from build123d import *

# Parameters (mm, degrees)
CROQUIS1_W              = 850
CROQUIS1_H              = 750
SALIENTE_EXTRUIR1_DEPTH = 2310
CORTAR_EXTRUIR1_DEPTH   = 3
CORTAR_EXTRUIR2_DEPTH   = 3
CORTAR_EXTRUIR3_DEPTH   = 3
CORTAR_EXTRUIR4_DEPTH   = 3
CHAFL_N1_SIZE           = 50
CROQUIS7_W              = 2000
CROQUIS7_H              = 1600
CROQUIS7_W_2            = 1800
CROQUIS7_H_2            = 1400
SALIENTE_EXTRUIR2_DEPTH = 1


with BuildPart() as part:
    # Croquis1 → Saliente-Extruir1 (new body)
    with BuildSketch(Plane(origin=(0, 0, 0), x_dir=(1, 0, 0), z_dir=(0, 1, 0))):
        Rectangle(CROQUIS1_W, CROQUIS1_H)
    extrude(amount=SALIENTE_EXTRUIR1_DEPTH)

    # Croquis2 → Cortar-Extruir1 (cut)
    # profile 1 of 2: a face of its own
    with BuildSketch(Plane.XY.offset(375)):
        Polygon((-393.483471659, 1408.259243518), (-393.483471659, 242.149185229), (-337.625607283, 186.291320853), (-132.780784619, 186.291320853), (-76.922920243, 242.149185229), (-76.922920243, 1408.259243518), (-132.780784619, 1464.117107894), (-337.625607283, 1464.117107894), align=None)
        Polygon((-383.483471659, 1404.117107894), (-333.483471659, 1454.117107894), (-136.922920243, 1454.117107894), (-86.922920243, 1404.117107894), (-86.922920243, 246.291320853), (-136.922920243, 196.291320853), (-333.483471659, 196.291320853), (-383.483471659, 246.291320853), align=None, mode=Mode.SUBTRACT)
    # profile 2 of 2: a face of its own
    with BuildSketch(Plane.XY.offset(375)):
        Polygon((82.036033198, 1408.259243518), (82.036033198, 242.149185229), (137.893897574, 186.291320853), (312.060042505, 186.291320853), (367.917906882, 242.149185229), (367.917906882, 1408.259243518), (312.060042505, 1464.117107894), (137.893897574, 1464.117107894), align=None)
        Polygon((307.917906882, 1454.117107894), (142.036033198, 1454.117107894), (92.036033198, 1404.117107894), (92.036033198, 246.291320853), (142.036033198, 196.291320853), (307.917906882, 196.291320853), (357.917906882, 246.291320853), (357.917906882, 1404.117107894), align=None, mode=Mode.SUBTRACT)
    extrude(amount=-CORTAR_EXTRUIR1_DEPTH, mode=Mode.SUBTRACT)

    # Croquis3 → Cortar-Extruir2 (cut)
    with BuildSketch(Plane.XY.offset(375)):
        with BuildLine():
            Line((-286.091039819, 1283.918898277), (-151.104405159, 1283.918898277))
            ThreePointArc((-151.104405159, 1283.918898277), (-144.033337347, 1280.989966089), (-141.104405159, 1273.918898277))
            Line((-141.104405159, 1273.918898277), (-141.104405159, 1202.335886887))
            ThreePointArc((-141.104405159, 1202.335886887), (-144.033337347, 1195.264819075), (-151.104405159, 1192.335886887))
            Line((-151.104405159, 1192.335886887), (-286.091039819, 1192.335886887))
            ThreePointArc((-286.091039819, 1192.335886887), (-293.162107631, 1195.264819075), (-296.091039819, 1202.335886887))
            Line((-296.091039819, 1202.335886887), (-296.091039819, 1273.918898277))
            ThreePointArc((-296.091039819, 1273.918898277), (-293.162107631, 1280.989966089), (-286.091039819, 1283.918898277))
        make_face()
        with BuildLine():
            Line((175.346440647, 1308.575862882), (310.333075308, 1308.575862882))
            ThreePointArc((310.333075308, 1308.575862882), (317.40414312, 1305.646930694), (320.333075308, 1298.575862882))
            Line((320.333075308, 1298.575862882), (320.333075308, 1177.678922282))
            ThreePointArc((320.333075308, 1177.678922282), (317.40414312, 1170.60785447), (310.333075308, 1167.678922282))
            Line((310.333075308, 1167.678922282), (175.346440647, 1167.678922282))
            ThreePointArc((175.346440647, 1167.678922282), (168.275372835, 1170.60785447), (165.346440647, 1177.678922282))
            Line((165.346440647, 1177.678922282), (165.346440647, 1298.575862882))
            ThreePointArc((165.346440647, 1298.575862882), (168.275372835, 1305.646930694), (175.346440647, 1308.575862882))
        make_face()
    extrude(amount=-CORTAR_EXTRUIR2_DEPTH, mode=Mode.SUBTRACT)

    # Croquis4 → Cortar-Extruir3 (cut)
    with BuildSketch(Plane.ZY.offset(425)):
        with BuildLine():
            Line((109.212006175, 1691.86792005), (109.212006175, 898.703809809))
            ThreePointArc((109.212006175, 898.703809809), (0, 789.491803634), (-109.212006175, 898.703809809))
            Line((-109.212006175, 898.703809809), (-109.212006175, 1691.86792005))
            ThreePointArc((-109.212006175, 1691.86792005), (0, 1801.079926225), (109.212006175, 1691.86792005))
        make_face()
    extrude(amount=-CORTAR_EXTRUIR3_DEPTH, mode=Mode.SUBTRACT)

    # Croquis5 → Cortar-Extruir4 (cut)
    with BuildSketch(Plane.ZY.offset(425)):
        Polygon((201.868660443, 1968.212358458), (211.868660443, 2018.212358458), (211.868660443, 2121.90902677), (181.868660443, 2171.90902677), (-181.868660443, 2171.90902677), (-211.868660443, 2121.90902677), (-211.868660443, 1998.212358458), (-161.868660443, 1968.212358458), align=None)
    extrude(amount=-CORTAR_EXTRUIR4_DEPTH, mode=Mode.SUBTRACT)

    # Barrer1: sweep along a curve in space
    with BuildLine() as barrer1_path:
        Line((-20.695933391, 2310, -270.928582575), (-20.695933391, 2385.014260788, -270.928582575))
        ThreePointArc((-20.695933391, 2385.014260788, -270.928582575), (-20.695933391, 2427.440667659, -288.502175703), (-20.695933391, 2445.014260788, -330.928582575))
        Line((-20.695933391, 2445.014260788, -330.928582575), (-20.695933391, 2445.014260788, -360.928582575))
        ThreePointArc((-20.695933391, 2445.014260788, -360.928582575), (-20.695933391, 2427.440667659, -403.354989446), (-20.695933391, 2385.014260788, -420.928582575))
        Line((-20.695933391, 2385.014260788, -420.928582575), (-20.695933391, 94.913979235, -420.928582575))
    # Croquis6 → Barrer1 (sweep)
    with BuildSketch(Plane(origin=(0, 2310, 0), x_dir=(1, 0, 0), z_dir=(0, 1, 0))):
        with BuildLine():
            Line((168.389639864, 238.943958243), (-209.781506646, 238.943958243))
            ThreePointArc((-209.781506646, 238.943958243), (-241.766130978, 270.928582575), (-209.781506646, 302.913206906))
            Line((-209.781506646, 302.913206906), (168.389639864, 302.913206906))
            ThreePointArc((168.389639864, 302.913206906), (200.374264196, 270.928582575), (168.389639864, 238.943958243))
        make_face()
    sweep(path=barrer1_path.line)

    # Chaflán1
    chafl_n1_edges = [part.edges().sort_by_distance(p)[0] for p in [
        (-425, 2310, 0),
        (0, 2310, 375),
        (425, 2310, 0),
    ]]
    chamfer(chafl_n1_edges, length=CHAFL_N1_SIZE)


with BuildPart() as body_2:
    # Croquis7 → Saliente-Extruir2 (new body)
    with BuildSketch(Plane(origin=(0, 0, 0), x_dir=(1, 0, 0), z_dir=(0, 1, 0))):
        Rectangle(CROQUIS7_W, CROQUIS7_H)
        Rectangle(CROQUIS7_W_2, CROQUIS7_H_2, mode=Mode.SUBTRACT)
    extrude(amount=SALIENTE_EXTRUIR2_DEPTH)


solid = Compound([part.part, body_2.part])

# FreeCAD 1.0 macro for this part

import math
import FreeCAD as App
import Part
import Sketcher


def edges_at(feature, points):
    """Names of the edges that pass closest to the given points."""
    edges = feature.Shape.Edges
    near = lambda p: min(range(len(edges)), key=lambda i: edges[i].distToShape(Part.Vertex(*p))[0])
    return sorted({f"Edge{near(p) + 1}" for p in points})


def add_polygon(sketch, points):
    """Adds a closed chain of lines whose ends are joined by coincident constraints."""
    first, n = sketch.GeometryCount, len(points)
    for a, b in zip(points, points[1:] + points[:1]):
        sketch.addGeometry(Part.LineSegment(App.Vector(*a, 0), App.Vector(*b, 0)), False)
    for i in range(n):
        sketch.addConstraint(Sketcher.Constraint("Coincident", first + i, 2, first + (i + 1) % n, 1))

doc = App.newDocument("Part")
params = doc.addObject("Spreadsheet::Sheet", "Params")
for row, (alias, value) in enumerate([
    ("sketch1_width", "850 mm"),
    ("sketch1_height", "750 mm"),
    ("pad1_length", "2310 mm"),
    ("pocket1_length", "3 mm"),
    ("sketch3_radius", "10 mm"),
    ("pocket2_length", "3 mm"),
    ("pocket3_length", "3 mm"),
    ("pocket4_length", "3 mm"),
    ("sketch7_radius", "60 mm"),
    ("sketch7_height", "30 mm"),
    ("chamfer_size", "50 mm"),
    ("sketch8_width", "2000 mm"),
    ("sketch8_width2", "1800 mm"),
    ("sketch8_height", "1600 mm"),
    ("sketch8_height2", "1400 mm"),
    ("pad2_length", "1 mm"),
], start=1):
    params.set(f"A{row}", alias)
    params.set(f"B{row}", "=" + value)
    params.setAlias(f"B{row}", alias)

body = doc.addObject("PartDesign::Body", "Body")

# Sketch on XZ plane
sketch1 = body.newObject("Sketcher::SketchObject", "Sketch")
sketch1.AttachmentSupport = (doc.getObject("XZ_Plane"), [""])
sketch1.MapMode = "FlatFace"
add_polygon(sketch1, [(-425, -375), (-425, 375), (425, 375), (425, -375)])  # lines 0-3
sketch1.addConstraint([
    Sketcher.Constraint("Vertical", 0),
    Sketcher.Constraint("Horizontal", 1),
    Sketcher.Constraint("Vertical", 2),
    Sketcher.Constraint("Horizontal", 3),
    Sketcher.Constraint("Symmetric", 0, 2, 2, 2, -1, 1),
    Sketcher.Constraint("DistanceX", 1, 1, 1, 2, 850.0),
    Sketcher.Constraint("DistanceY", 0, 1, 0, 2, 750.0),
])
sketch1.setExpression("Constraints[9]", "Params.sketch1_width")
sketch1.setExpression("Constraints[10]", "Params.sketch1_height")
pad1 = body.newObject("PartDesign::Pad", "Pad")
pad1.Profile = sketch1
pad1.setExpression("Length", "Params.pad1_length")
pad1.Reversed = True

# Sketch on XY plane
sketch2 = body.newObject("Sketcher::SketchObject", "Sketch001")
sketch2.AttachmentSupport = (doc.getObject("XY_Plane"), [""])
sketch2.MapMode = "FlatFace"
sketch2.AttachmentOffset = App.Placement(App.Vector(0, 0, 375), App.Rotation())
add_polygon(sketch2, [(-393, 1408), (-393, 242), (-338, 186), (-133, 186), (-77, 242), (-77, 1408), (-133, 1464), (-338, 1464)])  # lines 0-7
add_polygon(sketch2, [(-383, 246), (-383, 1404), (-333, 1454), (-137, 1454), (-87, 1404), (-87, 246), (-137, 196), (-333, 196)])  # lines 8-15
add_polygon(sketch2, [(82, 1408), (82, 242), (138, 186), (312, 186), (368, 242), (368, 1408), (312, 1464), (138, 1464)])  # lines 16-23
add_polygon(sketch2, [(142, 1454), (308, 1454), (358, 1404), (358, 246), (308, 196), (142, 196), (92, 246), (92, 1404)])  # lines 24-31
sketch2.addConstraint([
    Sketcher.Constraint("Vertical", 0),
    Sketcher.Constraint("Horizontal", 2),
    Sketcher.Constraint("Vertical", 4),
    Sketcher.Constraint("Horizontal", 6),
    Sketcher.Constraint("Vertical", 8),
    Sketcher.Constraint("Horizontal", 10),
    Sketcher.Constraint("Vertical", 12),
    Sketcher.Constraint("Horizontal", 14),
    Sketcher.Constraint("Vertical", 16),
    Sketcher.Constraint("Horizontal", 18),
    Sketcher.Constraint("Vertical", 20),
    Sketcher.Constraint("Horizontal", 22),
    Sketcher.Constraint("Horizontal", 24),
    Sketcher.Constraint("Vertical", 26),
    Sketcher.Constraint("Horizontal", 28),
    Sketcher.Constraint("Vertical", 30),
    Sketcher.Constraint("Perpendicular", 1, 3),
    Sketcher.Constraint("Perpendicular", 3, 5),
    Sketcher.Constraint("Perpendicular", 5, 7),
    Sketcher.Constraint("Parallel", 7, 9),
    Sketcher.Constraint("Perpendicular", 9, 11),
    Sketcher.Constraint("Perpendicular", 11, 13),
    Sketcher.Constraint("Perpendicular", 13, 15),
    Sketcher.Constraint("Parallel", 15, 17),
    Sketcher.Constraint("Perpendicular", 17, 19),
    Sketcher.Constraint("Perpendicular", 19, 21),
    Sketcher.Constraint("Perpendicular", 21, 23),
    Sketcher.Constraint("Perpendicular", 23, 25),
    Sketcher.Constraint("Perpendicular", 25, 27),
    Sketcher.Constraint("Perpendicular", 27, 29),
    Sketcher.Constraint("Perpendicular", 29, 31),
    Sketcher.Constraint("Horizontal", 0, 2, 3, 2),
    Sketcher.Constraint("Horizontal", 4, 2, 7, 2),
    Sketcher.Constraint("Horizontal", 8, 2, 11, 2),
    Sketcher.Constraint("Horizontal", 12, 2, 15, 2),
    Sketcher.Constraint("Horizontal", 3, 2, 16, 2),
    Sketcher.Constraint("Horizontal", 2, 2, 17, 2),
    Sketcher.Constraint("Horizontal", 16, 2, 19, 2),
    Sketcher.Constraint("Horizontal", 7, 2, 20, 2),
    Sketcher.Constraint("Horizontal", 6, 2, 21, 2),
    Sketcher.Constraint("Horizontal", 20, 2, 23, 2),
    Sketcher.Constraint("Horizontal", 10, 2, 24, 2),
    Sketcher.Constraint("Horizontal", 11, 2, 25, 2),
    Sketcher.Constraint("Horizontal", 15, 2, 26, 2),
    Sketcher.Constraint("Horizontal", 14, 2, 27, 2),
    Sketcher.Constraint("Horizontal", 26, 2, 29, 2),
    Sketcher.Constraint("Horizontal", 25, 2, 30, 2),
    Sketcher.Constraint("Vertical", 2, 2, 5, 2),
    Sketcher.Constraint("Vertical", 1, 2, 6, 2),
    Sketcher.Constraint("Vertical", 10, 2, 13, 2),
    Sketcher.Constraint("DistanceX", 7, 2, 8, 2, 10.0),
    Sketcher.Constraint("DistanceY", 8, 2, 6, 2, 60.0),
    Sketcher.Constraint("DistanceY", 9, 2, 6, 2, 10.0),
    Sketcher.Constraint("DistanceX", 10, 2, 4, 2, 60.0),
    Sketcher.Constraint("DistanceY", 2, 2, 12, 2, 60.0),
    Sketcher.Constraint("DistanceX", 24, 2, 20, 2, 60.0),
    Sketcher.Constraint("DistanceX", 16, 2, 28, 2, 60.0),
    Sketcher.Constraint("DistanceX", 10, 1, 10, 2, 196.560551),
    Sketcher.Constraint("DistanceY", 0, 2, 0, 1, 1166.110058),
    Sketcher.Constraint("Distance", 1, 78.994949),
    Sketcher.Constraint("DistanceX", 18, 1, 18, 2, 174.166145),
    Sketcher.Constraint("DistanceX", 0, 2, -1, 1, 393.483472),
    Sketcher.Constraint("DistanceY", -1, 1, 1, 2, 186.291321),
    Sketcher.Constraint("DistanceX", 5, 2, 20, 2, 500.698692),
])
pocket1 = body.newObject("PartDesign::Pocket", "Pocket")
pocket1.Profile = sketch2
pocket1.setExpression("Length", "Params.pocket1_length")

# Sketch on XY plane
sketch3 = body.newObject("Sketcher::SketchObject", "Sketch002")
sketch3.AttachmentSupport = (doc.getObject("XY_Plane"), [""])
sketch3.MapMode = "FlatFace"
sketch3.AttachmentOffset = App.Placement(App.Vector(0, 0, 375), App.Rotation())
sketch3.addGeometry([
    Part.LineSegment(App.Vector(-151, 1284, 0), App.Vector(-286, 1284, 0)),  # 0
    Part.ArcOfCircle(Part.Circle(App.Vector(-286, 1274, 0), App.Vector(0, 0, 1), 10), math.radians(90), math.radians(180)),  # 1
    Part.LineSegment(App.Vector(-296, 1274, 0), App.Vector(-296, 1202, 0)),  # 2
    Part.ArcOfCircle(Part.Circle(App.Vector(-286, 1202, 0), App.Vector(0, 0, 1), 10), math.radians(180), math.radians(270)),  # 3
    Part.LineSegment(App.Vector(-286, 1192, 0), App.Vector(-151, 1192, 0)),  # 4
    Part.ArcOfCircle(Part.Circle(App.Vector(-151, 1202, 0), App.Vector(0, 0, 1), 10), math.radians(-90), math.radians(0)),  # 5
    Part.LineSegment(App.Vector(-141, 1202, 0), App.Vector(-141, 1274, 0)),  # 6
    Part.ArcOfCircle(Part.Circle(App.Vector(-151, 1274, 0), App.Vector(0, 0, 1), 10), math.radians(0), math.radians(90)),  # 7
    Part.LineSegment(App.Vector(310, 1309, 0), App.Vector(175, 1309, 0)),  # 8
    Part.ArcOfCircle(Part.Circle(App.Vector(175, 1299, 0), App.Vector(0, 0, 1), 10), math.radians(90), math.radians(180)),  # 9
    Part.LineSegment(App.Vector(165, 1299, 0), App.Vector(165, 1178, 0)),  # 10
    Part.ArcOfCircle(Part.Circle(App.Vector(175, 1178, 0), App.Vector(0, 0, 1), 10), math.radians(180), math.radians(270)),  # 11
    Part.LineSegment(App.Vector(175, 1168, 0), App.Vector(310, 1168, 0)),  # 12
    Part.ArcOfCircle(Part.Circle(App.Vector(310, 1178, 0), App.Vector(0, 0, 1), 10), math.radians(-90), math.radians(0)),  # 13
    Part.LineSegment(App.Vector(320, 1178, 0), App.Vector(320, 1299, 0)),  # 14
    Part.ArcOfCircle(Part.Circle(App.Vector(310, 1299, 0), App.Vector(0, 0, 1), 10), math.radians(0), math.radians(90)),  # 15
], False)
sketch3.addConstraint([
    Sketcher.Constraint("Tangent", 0, 2, 1, 1),
    Sketcher.Constraint("Tangent", 1, 2, 2, 1),
    Sketcher.Constraint("Tangent", 2, 2, 3, 1),
    Sketcher.Constraint("Tangent", 3, 2, 4, 1),
    Sketcher.Constraint("Tangent", 4, 2, 5, 1),
    Sketcher.Constraint("Tangent", 5, 2, 6, 1),
    Sketcher.Constraint("Tangent", 6, 2, 7, 1),
    Sketcher.Constraint("Tangent", 7, 2, 0, 1),
    Sketcher.Constraint("Tangent", 8, 2, 9, 1),
    Sketcher.Constraint("Tangent", 9, 2, 10, 1),
    Sketcher.Constraint("Tangent", 10, 2, 11, 1),
    Sketcher.Constraint("Tangent", 11, 2, 12, 1),
    Sketcher.Constraint("Tangent", 12, 2, 13, 1),
    Sketcher.Constraint("Tangent", 13, 2, 14, 1),
    Sketcher.Constraint("Tangent", 14, 2, 15, 1),
    Sketcher.Constraint("Tangent", 15, 2, 8, 1),
    Sketcher.Constraint("Horizontal", 0),
    Sketcher.Constraint("Vertical", 2),
    Sketcher.Constraint("Horizontal", 4),
    Sketcher.Constraint("Vertical", 6),
    Sketcher.Constraint("Horizontal", 8),
    Sketcher.Constraint("Vertical", 10),
    Sketcher.Constraint("Horizontal", 12),
    Sketcher.Constraint("Vertical", 14),
    Sketcher.Constraint("Equal", 1, 3),
    Sketcher.Constraint("Equal", 3, 5),
    Sketcher.Constraint("Equal", 5, 7),
    Sketcher.Constraint("Equal", 7, 9),
    Sketcher.Constraint("Equal", 9, 11),
    Sketcher.Constraint("Equal", 11, 13),
    Sketcher.Constraint("Equal", 13, 15),
    Sketcher.Constraint("Equal", 4, 8),
    Sketcher.Constraint("Radius", 1, 10.0),
    Sketcher.Constraint("DistanceY", 2, 2, 2, 1, 71.583011),
    Sketcher.Constraint("DistanceY", 10, 2, 10, 1, 120.896941),
    Sketcher.Constraint("DistanceY", -1, 1, 1, 3, 1273.918898),
    Sketcher.Constraint("DistanceX", 0, 2, 0, 1, 134.986635),
    Sketcher.Constraint("DistanceX", 1, 3, -1, 1, 286.09104),
    Sketcher.Constraint("DistanceX", -1, 1, 9, 3, 175.346441),
    Sketcher.Constraint("DistanceY", -1, 1, 9, 3, 1298.575863),
])
sketch3.setExpression("Constraints[32]", "Params.sketch3_radius")
pocket2 = body.newObject("PartDesign::Pocket", "Pocket001")
pocket2.Profile = sketch3
pocket2.setExpression("Length", "Params.pocket2_length")

# Sketch on YZ plane
sketch4 = body.newObject("Sketcher::SketchObject", "Sketch003")
sketch4.AttachmentSupport = (doc.getObject("YZ_Plane"), [""])
sketch4.MapMode = "FlatFace"
sketch4.AttachmentOffset = App.Placement(App.Vector(0, 0, -425), App.Rotation())
sketch4.addGeometry([
    Part.LineSegment(App.Vector(899, 109, 0), App.Vector(1692, 109, 0)),
    Part.ArcOfCircle(Part.Circle(App.Vector(1692, 0, 0), App.Vector(0, 0, 1), 109), math.radians(-90), math.radians(90)),
    Part.LineSegment(App.Vector(1692, -109, 0), App.Vector(899, -109, 0)),
    Part.ArcOfCircle(Part.Circle(App.Vector(899, 0, 0), App.Vector(0, 0, 1), 109), math.radians(90), math.radians(270)),
], False)
sketch4.addConstraint([
    Sketcher.Constraint("Tangent", 0, 2, 1, 2),
    Sketcher.Constraint("Tangent", 1, 1, 2, 1),
    Sketcher.Constraint("Tangent", 2, 2, 3, 2),
    Sketcher.Constraint("Tangent", 3, 1, 0, 1),
    Sketcher.Constraint("Horizontal", 0),
    Sketcher.Constraint("Horizontal", 2),
    Sketcher.Constraint("PointOnObject", 1, 3, -1),
    Sketcher.Constraint("Radius", 1, 109.212006),
    Sketcher.Constraint("DistanceX", 0, 1, 0, 2, 793.16411),
    Sketcher.Constraint("DistanceX", -1, 1, 1, 3, 1691.86792),
])
pocket3 = body.newObject("PartDesign::Pocket", "Pocket002")
pocket3.Profile = sketch4
pocket3.setExpression("Length", "Params.pocket3_length")
pocket3.Reversed = True

# Sketch on YZ plane
sketch5 = body.newObject("Sketcher::SketchObject", "Sketch004")
sketch5.AttachmentSupport = (doc.getObject("YZ_Plane"), [""])
sketch5.MapMode = "FlatFace"
sketch5.AttachmentOffset = App.Placement(App.Vector(0, 0, -425), App.Rotation())
add_polygon(sketch5, [(1968, 202), (2018, 212), (2122, 212), (2172, 182), (2172, -182), (2122, -212), (1998, -212), (1968, -162)])  # lines 0-7
sketch5.addConstraint([
    Sketcher.Constraint("Horizontal", 1),
    Sketcher.Constraint("Vertical", 3),
    Sketcher.Constraint("Horizontal", 5),
    Sketcher.Constraint("Vertical", 7),
    Sketcher.Constraint("Symmetric", 1, 2, 4, 2, -1),
    Sketcher.Constraint("Perpendicular", 4, 6),
    Sketcher.Constraint("Equal", 3, 7),
    Sketcher.Constraint("Equal", 2, 4),
    Sketcher.Constraint("Equal", 4, 6),
    Sketcher.Constraint("DistanceX", 1, 2, 2, 2, 50.0),
    Sketcher.Constraint("DistanceY", 2, 2, 1, 2, 30.0),
    Sketcher.Constraint("DistanceX", 5, 2, 0, 2, 20.0),
    Sketcher.Constraint("DistanceX", 1, 1, 1, 2, 103.696668),
    Sketcher.Constraint("DistanceY", 3, 2, 3, 1, 363.737321),
    Sketcher.Constraint("DistanceX", -1, 1, 0, 2, 2018.212358),
])
pocket4 = body.newObject("PartDesign::Pocket", "Pocket003")
pocket4.Profile = sketch5
pocket4.setExpression("Length", "Params.pocket4_length")
pocket4.Reversed = True

# Sketch on XZ plane
sketch6 = body.newObject("Sketcher::SketchObject", "Sketch005")
sketch6.AttachmentSupport = (doc.getObject("XZ_Plane"), [""])
sketch6.MapMode = "FlatFace"
sketch6.AttachmentOffset = App.Placement(App.Vector(0, 0, -2310), App.Rotation())
sketch6.addGeometry([
    Part.LineSegment(App.Vector(-210, -239, 0), App.Vector(168, -239, 0)),
    Part.ArcOfCircle(Part.Circle(App.Vector(168, -271, 0), App.Vector(0, 0, 1), 32), math.radians(-90), math.radians(90)),
    Part.LineSegment(App.Vector(168, -303, 0), App.Vector(-210, -303, 0)),
    Part.ArcOfCircle(Part.Circle(App.Vector(-210, -271, 0), App.Vector(0, 0, 1), 32), math.radians(90), math.radians(270)),
], False)
sketch6.addConstraint([
    Sketcher.Constraint("Tangent", 0, 2, 1, 2),
    Sketcher.Constraint("Tangent", 1, 1, 2, 1),
    Sketcher.Constraint("Tangent", 2, 2, 3, 2),
    Sketcher.Constraint("Tangent", 3, 1, 0, 1),
    Sketcher.Constraint("Horizontal", 0),
    Sketcher.Constraint("Horizontal", 2),
    Sketcher.Constraint("Radius", 1, 31.984624),
    Sketcher.Constraint("DistanceX", 0, 1, 0, 2, 378.171147),
    Sketcher.Constraint("DistanceX", -1, 1, 1, 3, 168.38964),
    Sketcher.Constraint("DistanceY", 0, 2, -1, 1, 238.943958),
])

# Sketch on YZ plane
sketch7 = body.newObject("Sketcher::SketchObject", "Sketch006")
sketch7.AttachmentSupport = (doc.getObject("YZ_Plane"), [""])
sketch7.MapMode = "FlatFace"
sketch7.AttachmentOffset = App.Placement(App.Vector(0, 0, -20.695933), App.Rotation())
sketch7.addGeometry([
    Part.LineSegment(App.Vector(2310, -271, 0), App.Vector(2385, -271, 0)),  # 0
    Part.ArcOfCircle(Part.Circle(App.Vector(2385, -331, 0), App.Vector(0, 0, 1), 60), math.radians(0), math.radians(90)),  # 1
    Part.LineSegment(App.Vector(2445, -331, 0), App.Vector(2445, -361, 0)),  # 2
    Part.ArcOfCircle(Part.Circle(App.Vector(2385, -361, 0), App.Vector(0, 0, 1), 60), math.radians(-90), math.radians(0)),  # 3
    Part.LineSegment(App.Vector(2385, -421, 0), App.Vector(95, -421, 0)),  # 4
], False)
sketch7.addConstraint([
    Sketcher.Constraint("Tangent", 0, 2, 1, 2),
    Sketcher.Constraint("Tangent", 1, 1, 2, 1),
    Sketcher.Constraint("Tangent", 2, 2, 3, 2),
    Sketcher.Constraint("Tangent", 3, 1, 4, 1),
    Sketcher.Constraint("Horizontal", 0),
    Sketcher.Constraint("Vertical", 2),
    Sketcher.Constraint("Horizontal", 4),
    Sketcher.Constraint("Equal", 1, 3),
    Sketcher.Constraint("Radius", 1, 60.0),
    Sketcher.Constraint("DistanceY", 2, 2, 2, 1, 30.0),
    Sketcher.Constraint("DistanceX", -1, 1, 0, 1, 2310.0),
    Sketcher.Constraint("DistanceX", 0, 1, 0, 2, 75.014261),
    Sketcher.Constraint("DistanceX", 4, 2, 4, 1, 2290.100282),
    Sketcher.Constraint("DistanceY", 1, 3, -1, 1, 330.928583),
])
sketch7.setExpression("Constraints[8]", "Params.sketch7_radius")
sketch7.setExpression("Constraints[9]", "Params.sketch7_height")
doc.recompute()

additivepipe = body.newObject("PartDesign::AdditivePipe", "AdditivePipe")
additivepipe.Profile = sketch6
additivepipe.Spine = (sketch7, ["Edge1", "Edge2", "Edge3", "Edge4", "Edge5"])
doc.recompute()

chamfer = body.newObject("PartDesign::Chamfer", "Chamfer")
chamfer.Base = (additivepipe, edges_at(additivepipe, [(-425, 2310, 0), (0, 2310, 375), (425, 2310, 0)]))
chamfer.setExpression("Size", "Params.chamfer_size")
body2 = doc.addObject("PartDesign::Body", "Body001")

# Sketch on XZ plane
sketch8 = body2.newObject("Sketcher::SketchObject", "Sketch007")
sketch8.AttachmentSupport = (doc.getObject("XZ_Plane001"), [""])
sketch8.MapMode = "FlatFace"
add_polygon(sketch8, [(-1000, -800), (-1000, 800), (1000, 800), (1000, -800)])  # lines 0-3
add_polygon(sketch8, [(900, 700), (-900, 700), (-900, -700), (900, -700)])  # lines 4-7
sketch8.addConstraint([
    Sketcher.Constraint("Vertical", 0),
    Sketcher.Constraint("Horizontal", 1),
    Sketcher.Constraint("Vertical", 2),
    Sketcher.Constraint("Horizontal", 3),
    Sketcher.Constraint("Horizontal", 4),
    Sketcher.Constraint("Vertical", 5),
    Sketcher.Constraint("Horizontal", 6),
    Sketcher.Constraint("Vertical", 7),
    Sketcher.Constraint("Symmetric", 0, 2, 2, 2, -1, 1),
    Sketcher.Constraint("Symmetric", 4, 2, 6, 2, -1, 1),
    Sketcher.Constraint("DistanceX", 1, 1, 1, 2, 2000.0),
    Sketcher.Constraint("DistanceX", 4, 2, 4, 1, 1800.0),
    Sketcher.Constraint("DistanceY", 0, 1, 0, 2, 1600.0),
    Sketcher.Constraint("DistanceY", 5, 2, 5, 1, 1400.0),
])
sketch8.setExpression("Constraints[18]", "Params.sketch8_width")
sketch8.setExpression("Constraints[19]", "Params.sketch8_width2")
sketch8.setExpression("Constraints[20]", "Params.sketch8_height")
sketch8.setExpression("Constraints[21]", "Params.sketch8_height2")
pad2 = body2.newObject("PartDesign::Pad", "Pad001")
pad2.Profile = sketch8
pad2.setExpression("Length", "Params.pad2_length")
pad2.Reversed = True

doc.recompute()
